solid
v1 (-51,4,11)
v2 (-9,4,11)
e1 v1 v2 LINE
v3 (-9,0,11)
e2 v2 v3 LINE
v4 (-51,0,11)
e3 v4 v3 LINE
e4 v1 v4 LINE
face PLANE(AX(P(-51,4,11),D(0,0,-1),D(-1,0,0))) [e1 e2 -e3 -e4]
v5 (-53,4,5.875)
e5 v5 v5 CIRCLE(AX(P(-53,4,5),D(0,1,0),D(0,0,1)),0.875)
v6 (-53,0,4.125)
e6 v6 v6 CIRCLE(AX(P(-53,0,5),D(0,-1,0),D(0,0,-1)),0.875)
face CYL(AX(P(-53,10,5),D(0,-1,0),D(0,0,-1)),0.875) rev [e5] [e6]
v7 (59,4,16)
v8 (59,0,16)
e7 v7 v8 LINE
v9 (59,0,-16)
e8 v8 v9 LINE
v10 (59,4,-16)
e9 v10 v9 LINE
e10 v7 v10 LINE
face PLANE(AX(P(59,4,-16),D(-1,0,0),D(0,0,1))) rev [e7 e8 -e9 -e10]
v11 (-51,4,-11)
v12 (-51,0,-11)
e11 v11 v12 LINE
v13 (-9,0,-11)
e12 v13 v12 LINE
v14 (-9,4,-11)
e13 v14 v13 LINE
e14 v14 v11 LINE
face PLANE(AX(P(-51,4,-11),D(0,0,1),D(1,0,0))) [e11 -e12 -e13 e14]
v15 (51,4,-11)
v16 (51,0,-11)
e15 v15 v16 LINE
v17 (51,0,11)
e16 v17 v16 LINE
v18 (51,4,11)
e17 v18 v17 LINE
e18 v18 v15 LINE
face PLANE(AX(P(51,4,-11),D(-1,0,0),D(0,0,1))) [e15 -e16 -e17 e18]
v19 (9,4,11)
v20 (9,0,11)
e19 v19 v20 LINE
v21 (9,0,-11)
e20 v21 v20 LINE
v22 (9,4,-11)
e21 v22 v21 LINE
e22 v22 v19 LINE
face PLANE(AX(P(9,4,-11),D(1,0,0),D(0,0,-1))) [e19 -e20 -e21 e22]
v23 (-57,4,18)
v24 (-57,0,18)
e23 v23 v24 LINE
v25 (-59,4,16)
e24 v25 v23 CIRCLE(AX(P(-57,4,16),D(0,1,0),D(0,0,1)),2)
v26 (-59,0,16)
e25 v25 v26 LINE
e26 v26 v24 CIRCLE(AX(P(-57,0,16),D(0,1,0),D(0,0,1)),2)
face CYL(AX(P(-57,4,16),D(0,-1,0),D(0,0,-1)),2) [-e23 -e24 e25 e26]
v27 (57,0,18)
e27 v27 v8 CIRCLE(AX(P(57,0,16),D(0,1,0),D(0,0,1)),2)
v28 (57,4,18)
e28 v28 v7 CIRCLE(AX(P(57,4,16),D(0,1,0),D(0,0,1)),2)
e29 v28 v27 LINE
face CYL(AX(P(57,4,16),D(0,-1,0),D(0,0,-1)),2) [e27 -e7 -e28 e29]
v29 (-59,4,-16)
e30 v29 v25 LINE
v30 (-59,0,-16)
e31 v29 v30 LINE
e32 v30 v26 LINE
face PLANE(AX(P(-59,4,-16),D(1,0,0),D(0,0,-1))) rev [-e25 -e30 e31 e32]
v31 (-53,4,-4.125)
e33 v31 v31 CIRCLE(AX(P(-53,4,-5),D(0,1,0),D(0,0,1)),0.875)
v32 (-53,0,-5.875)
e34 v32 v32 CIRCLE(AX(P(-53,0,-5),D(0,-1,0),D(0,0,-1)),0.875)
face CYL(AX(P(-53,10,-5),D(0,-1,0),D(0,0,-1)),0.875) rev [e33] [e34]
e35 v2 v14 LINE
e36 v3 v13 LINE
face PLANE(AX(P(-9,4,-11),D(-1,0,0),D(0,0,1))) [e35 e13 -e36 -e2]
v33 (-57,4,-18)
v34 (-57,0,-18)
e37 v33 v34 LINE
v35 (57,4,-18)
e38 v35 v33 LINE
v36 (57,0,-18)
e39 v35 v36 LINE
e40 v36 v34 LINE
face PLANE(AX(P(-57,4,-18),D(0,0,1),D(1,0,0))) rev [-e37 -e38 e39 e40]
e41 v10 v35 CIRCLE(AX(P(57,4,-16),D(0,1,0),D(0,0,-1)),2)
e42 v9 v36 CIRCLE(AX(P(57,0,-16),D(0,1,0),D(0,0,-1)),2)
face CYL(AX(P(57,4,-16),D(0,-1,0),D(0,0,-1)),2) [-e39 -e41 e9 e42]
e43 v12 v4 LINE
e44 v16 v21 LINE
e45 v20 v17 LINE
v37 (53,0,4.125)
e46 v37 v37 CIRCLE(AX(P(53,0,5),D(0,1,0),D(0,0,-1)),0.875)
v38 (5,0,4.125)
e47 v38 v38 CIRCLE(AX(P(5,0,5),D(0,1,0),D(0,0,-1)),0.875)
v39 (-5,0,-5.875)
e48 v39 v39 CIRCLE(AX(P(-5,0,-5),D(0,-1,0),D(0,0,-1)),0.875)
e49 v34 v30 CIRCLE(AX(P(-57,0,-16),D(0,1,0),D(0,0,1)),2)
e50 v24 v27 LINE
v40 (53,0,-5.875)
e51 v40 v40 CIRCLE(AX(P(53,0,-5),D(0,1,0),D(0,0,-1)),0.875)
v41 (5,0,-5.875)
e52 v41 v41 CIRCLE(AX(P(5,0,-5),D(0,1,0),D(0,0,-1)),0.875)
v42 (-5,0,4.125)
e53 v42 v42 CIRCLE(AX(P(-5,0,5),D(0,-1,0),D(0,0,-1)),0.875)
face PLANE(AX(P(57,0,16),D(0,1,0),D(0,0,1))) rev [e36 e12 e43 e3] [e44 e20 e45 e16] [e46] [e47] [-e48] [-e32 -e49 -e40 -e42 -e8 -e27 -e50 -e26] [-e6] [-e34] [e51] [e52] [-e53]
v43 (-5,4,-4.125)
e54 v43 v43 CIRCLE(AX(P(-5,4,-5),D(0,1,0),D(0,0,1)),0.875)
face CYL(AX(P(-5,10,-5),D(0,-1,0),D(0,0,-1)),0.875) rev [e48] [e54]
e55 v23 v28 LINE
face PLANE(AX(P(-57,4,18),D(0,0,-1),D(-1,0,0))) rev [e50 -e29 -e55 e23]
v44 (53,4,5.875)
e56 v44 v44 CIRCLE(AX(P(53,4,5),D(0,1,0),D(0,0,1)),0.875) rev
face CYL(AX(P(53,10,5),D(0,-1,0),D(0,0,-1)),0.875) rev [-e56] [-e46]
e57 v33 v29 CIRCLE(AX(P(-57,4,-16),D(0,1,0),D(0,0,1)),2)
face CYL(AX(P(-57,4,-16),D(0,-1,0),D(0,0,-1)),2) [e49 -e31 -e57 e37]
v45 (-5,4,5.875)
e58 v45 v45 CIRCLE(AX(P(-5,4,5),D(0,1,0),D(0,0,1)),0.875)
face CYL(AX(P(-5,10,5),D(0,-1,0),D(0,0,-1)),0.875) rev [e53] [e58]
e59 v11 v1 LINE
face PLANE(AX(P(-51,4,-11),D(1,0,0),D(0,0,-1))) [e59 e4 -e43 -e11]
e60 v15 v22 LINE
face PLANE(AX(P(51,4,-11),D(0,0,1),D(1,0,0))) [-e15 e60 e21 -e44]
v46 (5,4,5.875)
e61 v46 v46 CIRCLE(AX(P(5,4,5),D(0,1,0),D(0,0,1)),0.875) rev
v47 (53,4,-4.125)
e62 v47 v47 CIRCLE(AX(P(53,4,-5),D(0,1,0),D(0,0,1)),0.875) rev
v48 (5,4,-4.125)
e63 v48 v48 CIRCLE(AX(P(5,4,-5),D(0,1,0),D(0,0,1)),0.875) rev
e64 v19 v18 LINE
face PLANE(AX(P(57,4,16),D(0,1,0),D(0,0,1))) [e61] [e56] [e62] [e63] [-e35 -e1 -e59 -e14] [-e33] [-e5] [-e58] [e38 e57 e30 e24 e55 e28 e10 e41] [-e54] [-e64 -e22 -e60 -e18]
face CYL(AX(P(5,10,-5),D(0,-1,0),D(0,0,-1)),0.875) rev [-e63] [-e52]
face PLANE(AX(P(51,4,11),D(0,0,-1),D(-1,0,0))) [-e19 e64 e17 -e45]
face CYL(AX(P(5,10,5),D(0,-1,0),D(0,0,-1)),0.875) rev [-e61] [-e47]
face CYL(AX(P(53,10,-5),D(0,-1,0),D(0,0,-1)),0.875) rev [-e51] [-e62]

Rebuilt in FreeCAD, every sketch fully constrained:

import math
import FreeCAD as App
import Part
import Sketcher
Q = App.Units.Quantity


def add_polygon(sketch, points):
    """Adds a closed chain of lines whose ends are joined by coincident constraints."""
    first, n = sketch.GeometryCount, len(points)
    for a, b in zip(points, points[1:] + points[:1]):
        sketch.addGeometry(Part.LineSegment(App.Vector(*a, 0), App.Vector(*b, 0)), False)
    for i in range(n):
        sketch.addConstraint(Sketcher.Constraint("Coincident", first + i, 2, first + (i + 1) % n, 1))

doc = App.newDocument("Part")
body = doc.addObject("PartDesign::Body", "Body")

# Sketch on XZ plane
sketch1 = body.newObject("Sketcher::SketchObject", "Sketch")
sketch1.AttachmentSupport = (doc.getObject("XZ_Plane"), [""])
sketch1.MapMode = "FlatFace"
sketch1.addGeometry(Part.LineSegment(App.Vector(57, -18, 0), App.Vector(-57, -18, 0)), False)  # 0
sketch1.addGeometry(Part.ArcOfCircle(Part.Circle(App.Vector(-57, -16, 0), App.Vector(0, 0, 1), 2), math.radians(-180), math.radians(-90)), False)  # 1
sketch1.addGeometry(Part.LineSegment(App.Vector(-59, -16, 0), App.Vector(-59, 16, 0)), False)  # 2
sketch1.addGeometry(Part.ArcOfCircle(Part.Circle(App.Vector(-57, 16, 0), App.Vector(0, 0, 1), 2), math.radians(90), math.radians(180)), False)  # 3
sketch1.addGeometry(Part.LineSegment(App.Vector(-57, 18, 0), App.Vector(57, 18, 0)), False)  # 4
sketch1.addGeometry(Part.ArcOfCircle(Part.Circle(App.Vector(57, 16, 0), App.Vector(0, 0, 1), 2), math.radians(0), math.radians(90)), False)  # 5
sketch1.addGeometry(Part.LineSegment(App.Vector(59, 16, 0), App.Vector(59, -16, 0)), False)  # 6
sketch1.addGeometry(Part.ArcOfCircle(Part.Circle(App.Vector(57, -16, 0), App.Vector(0, 0, 1), 2), math.radians(-90), math.radians(0)), False)  # 7
add_polygon(sketch1, [(9, 11), (9, -11), (51, -11), (51, 11)])  # lines 8-11
add_polygon(sketch1, [(-51, 11), (-51, -11), (-9, -11), (-9, 11)])  # lines 12-15
sketch1.addConstraint(Sketcher.Constraint("Tangent", 0, 2, 1, 2))
sketch1.addConstraint(Sketcher.Constraint("Tangent", 1, 1, 2, 1))
sketch1.addConstraint(Sketcher.Constraint("Tangent", 2, 2, 3, 2))
sketch1.addConstraint(Sketcher.Constraint("Tangent", 3, 1, 4, 1))
sketch1.addConstraint(Sketcher.Constraint("Tangent", 4, 2, 5, 2))
sketch1.addConstraint(Sketcher.Constraint("Tangent", 5, 1, 6, 1))
sketch1.addConstraint(Sketcher.Constraint("Tangent", 6, 2, 7, 2))
sketch1.addConstraint(Sketcher.Constraint("Tangent", 7, 1, 0, 1))
sketch1.addConstraint(Sketcher.Constraint("Horizontal", 0))
sketch1.addConstraint(Sketcher.Constraint("Vertical", 2))
sketch1.addConstraint(Sketcher.Constraint("Horizontal", 4))
sketch1.addConstraint(Sketcher.Constraint("Vertical", 6))
sketch1.addConstraint(Sketcher.Constraint("Vertical", 8))
sketch1.addConstraint(Sketcher.Constraint("Horizontal", 9))
sketch1.addConstraint(Sketcher.Constraint("Vertical", 10))
sketch1.addConstraint(Sketcher.Constraint("Horizontal", 11))
sketch1.addConstraint(Sketcher.Constraint("Vertical", 12))
sketch1.addConstraint(Sketcher.Constraint("Horizontal", 13))
sketch1.addConstraint(Sketcher.Constraint("Vertical", 14))
sketch1.addConstraint(Sketcher.Constraint("Horizontal", 15))
sketch1.addConstraint(Sketcher.Constraint("Equal", 1, 3))
sketch1.addConstraint(Sketcher.Constraint("Equal", 3, 5))
sketch1.addConstraint(Sketcher.Constraint("Equal", 5, 7))
sketch1.addConstraint(Sketcher.Constraint("Symmetric", 1, 3, 5, 3, -1, 1))
sketch1.addConstraint(Sketcher.Constraint("Symmetric", 10, 2, 12, 2, -1, 1))
sketch1.addConstraint(Sketcher.Constraint("Symmetric", 8, 2, 14, 2, -1, 1))
sketch1.addConstraint(Sketcher.Constraint("Horizontal", 9, 2, 12, 2))
sketch1.addConstraint(Sketcher.Constraint("Radius", 1, Q("2 mm")))
sketch1.addConstraint(Sketcher.Constraint("DistanceX", 0, 2, 0, 1, Q("114 mm")))
sketch1.addConstraint(Sketcher.Constraint("DistanceX", 9, 1, 9, 2, Q("42 mm")))
sketch1.addConstraint(Sketcher.Constraint("DistanceY", 2, 1, 2, 2, Q("32 mm")))
sketch1.addConstraint(Sketcher.Constraint("DistanceY", 8, 2, 8, 1, Q("22 mm")))
sketch1.addConstraint(Sketcher.Constraint("DistanceX", -1, 1, 8, 2, Q("9 mm")))
pad1 = body.newObject("PartDesign::Pad", "Pad")
pad1.Profile = sketch1
pad1.Length = 4
pad1.Reversed = True

# Sketch on XZ plane
sketch2 = body.newObject("Sketcher::SketchObject", "Sketch001")
sketch2.AttachmentSupport = (doc.getObject("XZ_Plane"), [""])
sketch2.MapMode = "FlatFace"
sketch2.addGeometry(Part.Circle(App.Vector(-53, 5, 0), App.Vector(0, 0, 1), 0.875), False)
sketch2.addGeometry(Part.Circle(App.Vector(-53, -5, 0), App.Vector(0, 0, 1), 0.875), False)
sketch2.addConstraint(Sketcher.Constraint("Equal", 0, 1))
sketch2.addConstraint(Sketcher.Constraint("Symmetric", 0, 3, 1, 3, -1))
sketch2.addConstraint(Sketcher.Constraint("Diameter", 0, Q("1.75 mm")))
sketch2.addConstraint(Sketcher.Constraint("DistanceX", 0, 3, -1, 1, Q("53 mm")))
sketch2.addConstraint(Sketcher.Constraint("DistanceY", -1, 1, 0, 3, Q("5 mm")))
pocket1 = body.newObject("PartDesign::Pocket", "Pocket")
pocket1.Profile = sketch2
pocket1.Length = 10

# Sketch on XZ plane
sketch3 = body.newObject("Sketcher::SketchObject", "Sketch002")
sketch3.AttachmentSupport = (doc.getObject("XZ_Plane"), [""])
sketch3.MapMode = "FlatFace"
sketch3.addGeometry(Part.Circle(App.Vector(-5, 5, 0), App.Vector(0, 0, 1), 0.875), False)
sketch3.addGeometry(Part.Circle(App.Vector(-5, -5, 0), App.Vector(0, 0, 1), 0.875), False)
sketch3.addConstraint(Sketcher.Constraint("Equal", 0, 1))
sketch3.addConstraint(Sketcher.Constraint("Symmetric", 0, 3, 1, 3, -1))
sketch3.addConstraint(Sketcher.Constraint("Diameter", 0, Q("1.75 mm")))
sketch3.addConstraint(Sketcher.Constraint("DistanceX", 0, 3, -1, 1, Q("5 mm")))
sketch3.addConstraint(Sketcher.Constraint("DistanceY", -1, 1, 0, 3, Q("5 mm")))
pocket2 = body.newObject("PartDesign::Pocket", "Pocket001")
pocket2.Profile = sketch3
pocket2.Length = 10
doc.recompute()

mirrored = body.newObject("PartDesign::Mirrored", "Mirrored")
mirrored.Originals = [pocket1, pocket2]
mirrored.MirrorPlane = (doc.getObject("YZ_Plane"), [""])
body.Tip = mirrored

doc.recompute()
